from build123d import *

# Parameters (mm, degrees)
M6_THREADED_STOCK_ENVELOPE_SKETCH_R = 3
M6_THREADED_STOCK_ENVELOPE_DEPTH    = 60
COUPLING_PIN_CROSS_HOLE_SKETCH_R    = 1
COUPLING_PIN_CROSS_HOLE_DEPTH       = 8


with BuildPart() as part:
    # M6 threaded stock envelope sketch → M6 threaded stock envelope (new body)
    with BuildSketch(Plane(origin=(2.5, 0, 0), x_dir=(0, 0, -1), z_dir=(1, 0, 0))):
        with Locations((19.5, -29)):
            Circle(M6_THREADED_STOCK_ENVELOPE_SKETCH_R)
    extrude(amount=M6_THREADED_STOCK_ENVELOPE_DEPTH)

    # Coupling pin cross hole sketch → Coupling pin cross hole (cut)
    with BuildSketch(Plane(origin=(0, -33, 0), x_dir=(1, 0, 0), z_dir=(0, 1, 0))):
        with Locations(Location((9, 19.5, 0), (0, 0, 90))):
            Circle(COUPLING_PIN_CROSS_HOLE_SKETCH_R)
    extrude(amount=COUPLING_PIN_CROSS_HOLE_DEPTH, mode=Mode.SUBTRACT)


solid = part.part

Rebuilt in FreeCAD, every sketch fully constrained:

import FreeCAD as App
import Part
import Sketcher

V = App.Vector
Q = App.Units.Quantity

doc = App.newDocument("Part")
params = doc.addObject("Spreadsheet::Sheet", "Params")
for row, (alias, value) in enumerate([
    ("sketch1_diameter", "6 mm"),
    ("pad1_length", "60 mm"),
    ("sketch2_diameter", "2 mm"),
    ("pocket1_length", "8 mm"),
], start=1):
    params.set(f"A{row}", alias)
    params.set(f"B{row}", "=" + value)
    params.setAlias(f"B{row}", alias)

body = doc.addObject("PartDesign::Body", "Body")

# Sketch on YZ plane
sketch1 = doc.addObject("Sketcher::SketchObject", "Sketch")
body.addObject(sketch1)
sketch1.AttachmentSupport = (doc.YZ_Plane, [""])
sketch1.MapMode = "FlatFace"
sketch1.AttachmentOffset = App.Placement(V(0, 0, 2.5), App.Rotation())
sketch1.addGeometry(Part.Circle(V(-29, -19.5, 0), V(0, 0, 1), 3), False)
sketch1.addConstraint([
    Sketcher.Constraint("Diameter", 0, Q("6 mm")),
    Sketcher.Constraint("DistanceX", 0, 3, -1, 1, Q("29 mm")),
    Sketcher.Constraint("DistanceY", 0, 3, -1, 1, Q("19.5 mm")),
])
sketch1.setExpression("Constraints[0]", "Params.sketch1_diameter")
pad1 = doc.addObject("PartDesign::Pad", "Pad")
body.addObject(pad1)
pad1.Profile = sketch1
pad1.setExpression("Length", "Params.pad1_length")

# Sketch on XZ plane
sketch2 = doc.addObject("Sketcher::SketchObject", "Sketch001")
body.addObject(sketch2)
sketch2.AttachmentSupport = (doc.XZ_Plane, [""])
sketch2.MapMode = "FlatFace"
sketch2.AttachmentOffset = App.Placement(V(0, 0, 33), App.Rotation())
sketch2.addGeometry(Part.Circle(V(9, -19.5, 0), V(0, 0, 1), 1), False)
sketch2.addConstraint([
    Sketcher.Constraint("Diameter", 0, Q("2 mm")),
    Sketcher.Constraint("DistanceX", -1, 1, 0, 3, Q("9 mm")),
    Sketcher.Constraint("DistanceY", 0, 3, -1, 1, Q("19.5 mm")),
])
sketch2.setExpression("Constraints[0]", "Params.sketch2_diameter")
pocket1 = doc.addObject("PartDesign::Pocket", "Pocket")
body.addObject(pocket1)
pocket1.Profile = sketch2
pocket1.setExpression("Length", "Params.pocket1_length")

doc.recompute()
